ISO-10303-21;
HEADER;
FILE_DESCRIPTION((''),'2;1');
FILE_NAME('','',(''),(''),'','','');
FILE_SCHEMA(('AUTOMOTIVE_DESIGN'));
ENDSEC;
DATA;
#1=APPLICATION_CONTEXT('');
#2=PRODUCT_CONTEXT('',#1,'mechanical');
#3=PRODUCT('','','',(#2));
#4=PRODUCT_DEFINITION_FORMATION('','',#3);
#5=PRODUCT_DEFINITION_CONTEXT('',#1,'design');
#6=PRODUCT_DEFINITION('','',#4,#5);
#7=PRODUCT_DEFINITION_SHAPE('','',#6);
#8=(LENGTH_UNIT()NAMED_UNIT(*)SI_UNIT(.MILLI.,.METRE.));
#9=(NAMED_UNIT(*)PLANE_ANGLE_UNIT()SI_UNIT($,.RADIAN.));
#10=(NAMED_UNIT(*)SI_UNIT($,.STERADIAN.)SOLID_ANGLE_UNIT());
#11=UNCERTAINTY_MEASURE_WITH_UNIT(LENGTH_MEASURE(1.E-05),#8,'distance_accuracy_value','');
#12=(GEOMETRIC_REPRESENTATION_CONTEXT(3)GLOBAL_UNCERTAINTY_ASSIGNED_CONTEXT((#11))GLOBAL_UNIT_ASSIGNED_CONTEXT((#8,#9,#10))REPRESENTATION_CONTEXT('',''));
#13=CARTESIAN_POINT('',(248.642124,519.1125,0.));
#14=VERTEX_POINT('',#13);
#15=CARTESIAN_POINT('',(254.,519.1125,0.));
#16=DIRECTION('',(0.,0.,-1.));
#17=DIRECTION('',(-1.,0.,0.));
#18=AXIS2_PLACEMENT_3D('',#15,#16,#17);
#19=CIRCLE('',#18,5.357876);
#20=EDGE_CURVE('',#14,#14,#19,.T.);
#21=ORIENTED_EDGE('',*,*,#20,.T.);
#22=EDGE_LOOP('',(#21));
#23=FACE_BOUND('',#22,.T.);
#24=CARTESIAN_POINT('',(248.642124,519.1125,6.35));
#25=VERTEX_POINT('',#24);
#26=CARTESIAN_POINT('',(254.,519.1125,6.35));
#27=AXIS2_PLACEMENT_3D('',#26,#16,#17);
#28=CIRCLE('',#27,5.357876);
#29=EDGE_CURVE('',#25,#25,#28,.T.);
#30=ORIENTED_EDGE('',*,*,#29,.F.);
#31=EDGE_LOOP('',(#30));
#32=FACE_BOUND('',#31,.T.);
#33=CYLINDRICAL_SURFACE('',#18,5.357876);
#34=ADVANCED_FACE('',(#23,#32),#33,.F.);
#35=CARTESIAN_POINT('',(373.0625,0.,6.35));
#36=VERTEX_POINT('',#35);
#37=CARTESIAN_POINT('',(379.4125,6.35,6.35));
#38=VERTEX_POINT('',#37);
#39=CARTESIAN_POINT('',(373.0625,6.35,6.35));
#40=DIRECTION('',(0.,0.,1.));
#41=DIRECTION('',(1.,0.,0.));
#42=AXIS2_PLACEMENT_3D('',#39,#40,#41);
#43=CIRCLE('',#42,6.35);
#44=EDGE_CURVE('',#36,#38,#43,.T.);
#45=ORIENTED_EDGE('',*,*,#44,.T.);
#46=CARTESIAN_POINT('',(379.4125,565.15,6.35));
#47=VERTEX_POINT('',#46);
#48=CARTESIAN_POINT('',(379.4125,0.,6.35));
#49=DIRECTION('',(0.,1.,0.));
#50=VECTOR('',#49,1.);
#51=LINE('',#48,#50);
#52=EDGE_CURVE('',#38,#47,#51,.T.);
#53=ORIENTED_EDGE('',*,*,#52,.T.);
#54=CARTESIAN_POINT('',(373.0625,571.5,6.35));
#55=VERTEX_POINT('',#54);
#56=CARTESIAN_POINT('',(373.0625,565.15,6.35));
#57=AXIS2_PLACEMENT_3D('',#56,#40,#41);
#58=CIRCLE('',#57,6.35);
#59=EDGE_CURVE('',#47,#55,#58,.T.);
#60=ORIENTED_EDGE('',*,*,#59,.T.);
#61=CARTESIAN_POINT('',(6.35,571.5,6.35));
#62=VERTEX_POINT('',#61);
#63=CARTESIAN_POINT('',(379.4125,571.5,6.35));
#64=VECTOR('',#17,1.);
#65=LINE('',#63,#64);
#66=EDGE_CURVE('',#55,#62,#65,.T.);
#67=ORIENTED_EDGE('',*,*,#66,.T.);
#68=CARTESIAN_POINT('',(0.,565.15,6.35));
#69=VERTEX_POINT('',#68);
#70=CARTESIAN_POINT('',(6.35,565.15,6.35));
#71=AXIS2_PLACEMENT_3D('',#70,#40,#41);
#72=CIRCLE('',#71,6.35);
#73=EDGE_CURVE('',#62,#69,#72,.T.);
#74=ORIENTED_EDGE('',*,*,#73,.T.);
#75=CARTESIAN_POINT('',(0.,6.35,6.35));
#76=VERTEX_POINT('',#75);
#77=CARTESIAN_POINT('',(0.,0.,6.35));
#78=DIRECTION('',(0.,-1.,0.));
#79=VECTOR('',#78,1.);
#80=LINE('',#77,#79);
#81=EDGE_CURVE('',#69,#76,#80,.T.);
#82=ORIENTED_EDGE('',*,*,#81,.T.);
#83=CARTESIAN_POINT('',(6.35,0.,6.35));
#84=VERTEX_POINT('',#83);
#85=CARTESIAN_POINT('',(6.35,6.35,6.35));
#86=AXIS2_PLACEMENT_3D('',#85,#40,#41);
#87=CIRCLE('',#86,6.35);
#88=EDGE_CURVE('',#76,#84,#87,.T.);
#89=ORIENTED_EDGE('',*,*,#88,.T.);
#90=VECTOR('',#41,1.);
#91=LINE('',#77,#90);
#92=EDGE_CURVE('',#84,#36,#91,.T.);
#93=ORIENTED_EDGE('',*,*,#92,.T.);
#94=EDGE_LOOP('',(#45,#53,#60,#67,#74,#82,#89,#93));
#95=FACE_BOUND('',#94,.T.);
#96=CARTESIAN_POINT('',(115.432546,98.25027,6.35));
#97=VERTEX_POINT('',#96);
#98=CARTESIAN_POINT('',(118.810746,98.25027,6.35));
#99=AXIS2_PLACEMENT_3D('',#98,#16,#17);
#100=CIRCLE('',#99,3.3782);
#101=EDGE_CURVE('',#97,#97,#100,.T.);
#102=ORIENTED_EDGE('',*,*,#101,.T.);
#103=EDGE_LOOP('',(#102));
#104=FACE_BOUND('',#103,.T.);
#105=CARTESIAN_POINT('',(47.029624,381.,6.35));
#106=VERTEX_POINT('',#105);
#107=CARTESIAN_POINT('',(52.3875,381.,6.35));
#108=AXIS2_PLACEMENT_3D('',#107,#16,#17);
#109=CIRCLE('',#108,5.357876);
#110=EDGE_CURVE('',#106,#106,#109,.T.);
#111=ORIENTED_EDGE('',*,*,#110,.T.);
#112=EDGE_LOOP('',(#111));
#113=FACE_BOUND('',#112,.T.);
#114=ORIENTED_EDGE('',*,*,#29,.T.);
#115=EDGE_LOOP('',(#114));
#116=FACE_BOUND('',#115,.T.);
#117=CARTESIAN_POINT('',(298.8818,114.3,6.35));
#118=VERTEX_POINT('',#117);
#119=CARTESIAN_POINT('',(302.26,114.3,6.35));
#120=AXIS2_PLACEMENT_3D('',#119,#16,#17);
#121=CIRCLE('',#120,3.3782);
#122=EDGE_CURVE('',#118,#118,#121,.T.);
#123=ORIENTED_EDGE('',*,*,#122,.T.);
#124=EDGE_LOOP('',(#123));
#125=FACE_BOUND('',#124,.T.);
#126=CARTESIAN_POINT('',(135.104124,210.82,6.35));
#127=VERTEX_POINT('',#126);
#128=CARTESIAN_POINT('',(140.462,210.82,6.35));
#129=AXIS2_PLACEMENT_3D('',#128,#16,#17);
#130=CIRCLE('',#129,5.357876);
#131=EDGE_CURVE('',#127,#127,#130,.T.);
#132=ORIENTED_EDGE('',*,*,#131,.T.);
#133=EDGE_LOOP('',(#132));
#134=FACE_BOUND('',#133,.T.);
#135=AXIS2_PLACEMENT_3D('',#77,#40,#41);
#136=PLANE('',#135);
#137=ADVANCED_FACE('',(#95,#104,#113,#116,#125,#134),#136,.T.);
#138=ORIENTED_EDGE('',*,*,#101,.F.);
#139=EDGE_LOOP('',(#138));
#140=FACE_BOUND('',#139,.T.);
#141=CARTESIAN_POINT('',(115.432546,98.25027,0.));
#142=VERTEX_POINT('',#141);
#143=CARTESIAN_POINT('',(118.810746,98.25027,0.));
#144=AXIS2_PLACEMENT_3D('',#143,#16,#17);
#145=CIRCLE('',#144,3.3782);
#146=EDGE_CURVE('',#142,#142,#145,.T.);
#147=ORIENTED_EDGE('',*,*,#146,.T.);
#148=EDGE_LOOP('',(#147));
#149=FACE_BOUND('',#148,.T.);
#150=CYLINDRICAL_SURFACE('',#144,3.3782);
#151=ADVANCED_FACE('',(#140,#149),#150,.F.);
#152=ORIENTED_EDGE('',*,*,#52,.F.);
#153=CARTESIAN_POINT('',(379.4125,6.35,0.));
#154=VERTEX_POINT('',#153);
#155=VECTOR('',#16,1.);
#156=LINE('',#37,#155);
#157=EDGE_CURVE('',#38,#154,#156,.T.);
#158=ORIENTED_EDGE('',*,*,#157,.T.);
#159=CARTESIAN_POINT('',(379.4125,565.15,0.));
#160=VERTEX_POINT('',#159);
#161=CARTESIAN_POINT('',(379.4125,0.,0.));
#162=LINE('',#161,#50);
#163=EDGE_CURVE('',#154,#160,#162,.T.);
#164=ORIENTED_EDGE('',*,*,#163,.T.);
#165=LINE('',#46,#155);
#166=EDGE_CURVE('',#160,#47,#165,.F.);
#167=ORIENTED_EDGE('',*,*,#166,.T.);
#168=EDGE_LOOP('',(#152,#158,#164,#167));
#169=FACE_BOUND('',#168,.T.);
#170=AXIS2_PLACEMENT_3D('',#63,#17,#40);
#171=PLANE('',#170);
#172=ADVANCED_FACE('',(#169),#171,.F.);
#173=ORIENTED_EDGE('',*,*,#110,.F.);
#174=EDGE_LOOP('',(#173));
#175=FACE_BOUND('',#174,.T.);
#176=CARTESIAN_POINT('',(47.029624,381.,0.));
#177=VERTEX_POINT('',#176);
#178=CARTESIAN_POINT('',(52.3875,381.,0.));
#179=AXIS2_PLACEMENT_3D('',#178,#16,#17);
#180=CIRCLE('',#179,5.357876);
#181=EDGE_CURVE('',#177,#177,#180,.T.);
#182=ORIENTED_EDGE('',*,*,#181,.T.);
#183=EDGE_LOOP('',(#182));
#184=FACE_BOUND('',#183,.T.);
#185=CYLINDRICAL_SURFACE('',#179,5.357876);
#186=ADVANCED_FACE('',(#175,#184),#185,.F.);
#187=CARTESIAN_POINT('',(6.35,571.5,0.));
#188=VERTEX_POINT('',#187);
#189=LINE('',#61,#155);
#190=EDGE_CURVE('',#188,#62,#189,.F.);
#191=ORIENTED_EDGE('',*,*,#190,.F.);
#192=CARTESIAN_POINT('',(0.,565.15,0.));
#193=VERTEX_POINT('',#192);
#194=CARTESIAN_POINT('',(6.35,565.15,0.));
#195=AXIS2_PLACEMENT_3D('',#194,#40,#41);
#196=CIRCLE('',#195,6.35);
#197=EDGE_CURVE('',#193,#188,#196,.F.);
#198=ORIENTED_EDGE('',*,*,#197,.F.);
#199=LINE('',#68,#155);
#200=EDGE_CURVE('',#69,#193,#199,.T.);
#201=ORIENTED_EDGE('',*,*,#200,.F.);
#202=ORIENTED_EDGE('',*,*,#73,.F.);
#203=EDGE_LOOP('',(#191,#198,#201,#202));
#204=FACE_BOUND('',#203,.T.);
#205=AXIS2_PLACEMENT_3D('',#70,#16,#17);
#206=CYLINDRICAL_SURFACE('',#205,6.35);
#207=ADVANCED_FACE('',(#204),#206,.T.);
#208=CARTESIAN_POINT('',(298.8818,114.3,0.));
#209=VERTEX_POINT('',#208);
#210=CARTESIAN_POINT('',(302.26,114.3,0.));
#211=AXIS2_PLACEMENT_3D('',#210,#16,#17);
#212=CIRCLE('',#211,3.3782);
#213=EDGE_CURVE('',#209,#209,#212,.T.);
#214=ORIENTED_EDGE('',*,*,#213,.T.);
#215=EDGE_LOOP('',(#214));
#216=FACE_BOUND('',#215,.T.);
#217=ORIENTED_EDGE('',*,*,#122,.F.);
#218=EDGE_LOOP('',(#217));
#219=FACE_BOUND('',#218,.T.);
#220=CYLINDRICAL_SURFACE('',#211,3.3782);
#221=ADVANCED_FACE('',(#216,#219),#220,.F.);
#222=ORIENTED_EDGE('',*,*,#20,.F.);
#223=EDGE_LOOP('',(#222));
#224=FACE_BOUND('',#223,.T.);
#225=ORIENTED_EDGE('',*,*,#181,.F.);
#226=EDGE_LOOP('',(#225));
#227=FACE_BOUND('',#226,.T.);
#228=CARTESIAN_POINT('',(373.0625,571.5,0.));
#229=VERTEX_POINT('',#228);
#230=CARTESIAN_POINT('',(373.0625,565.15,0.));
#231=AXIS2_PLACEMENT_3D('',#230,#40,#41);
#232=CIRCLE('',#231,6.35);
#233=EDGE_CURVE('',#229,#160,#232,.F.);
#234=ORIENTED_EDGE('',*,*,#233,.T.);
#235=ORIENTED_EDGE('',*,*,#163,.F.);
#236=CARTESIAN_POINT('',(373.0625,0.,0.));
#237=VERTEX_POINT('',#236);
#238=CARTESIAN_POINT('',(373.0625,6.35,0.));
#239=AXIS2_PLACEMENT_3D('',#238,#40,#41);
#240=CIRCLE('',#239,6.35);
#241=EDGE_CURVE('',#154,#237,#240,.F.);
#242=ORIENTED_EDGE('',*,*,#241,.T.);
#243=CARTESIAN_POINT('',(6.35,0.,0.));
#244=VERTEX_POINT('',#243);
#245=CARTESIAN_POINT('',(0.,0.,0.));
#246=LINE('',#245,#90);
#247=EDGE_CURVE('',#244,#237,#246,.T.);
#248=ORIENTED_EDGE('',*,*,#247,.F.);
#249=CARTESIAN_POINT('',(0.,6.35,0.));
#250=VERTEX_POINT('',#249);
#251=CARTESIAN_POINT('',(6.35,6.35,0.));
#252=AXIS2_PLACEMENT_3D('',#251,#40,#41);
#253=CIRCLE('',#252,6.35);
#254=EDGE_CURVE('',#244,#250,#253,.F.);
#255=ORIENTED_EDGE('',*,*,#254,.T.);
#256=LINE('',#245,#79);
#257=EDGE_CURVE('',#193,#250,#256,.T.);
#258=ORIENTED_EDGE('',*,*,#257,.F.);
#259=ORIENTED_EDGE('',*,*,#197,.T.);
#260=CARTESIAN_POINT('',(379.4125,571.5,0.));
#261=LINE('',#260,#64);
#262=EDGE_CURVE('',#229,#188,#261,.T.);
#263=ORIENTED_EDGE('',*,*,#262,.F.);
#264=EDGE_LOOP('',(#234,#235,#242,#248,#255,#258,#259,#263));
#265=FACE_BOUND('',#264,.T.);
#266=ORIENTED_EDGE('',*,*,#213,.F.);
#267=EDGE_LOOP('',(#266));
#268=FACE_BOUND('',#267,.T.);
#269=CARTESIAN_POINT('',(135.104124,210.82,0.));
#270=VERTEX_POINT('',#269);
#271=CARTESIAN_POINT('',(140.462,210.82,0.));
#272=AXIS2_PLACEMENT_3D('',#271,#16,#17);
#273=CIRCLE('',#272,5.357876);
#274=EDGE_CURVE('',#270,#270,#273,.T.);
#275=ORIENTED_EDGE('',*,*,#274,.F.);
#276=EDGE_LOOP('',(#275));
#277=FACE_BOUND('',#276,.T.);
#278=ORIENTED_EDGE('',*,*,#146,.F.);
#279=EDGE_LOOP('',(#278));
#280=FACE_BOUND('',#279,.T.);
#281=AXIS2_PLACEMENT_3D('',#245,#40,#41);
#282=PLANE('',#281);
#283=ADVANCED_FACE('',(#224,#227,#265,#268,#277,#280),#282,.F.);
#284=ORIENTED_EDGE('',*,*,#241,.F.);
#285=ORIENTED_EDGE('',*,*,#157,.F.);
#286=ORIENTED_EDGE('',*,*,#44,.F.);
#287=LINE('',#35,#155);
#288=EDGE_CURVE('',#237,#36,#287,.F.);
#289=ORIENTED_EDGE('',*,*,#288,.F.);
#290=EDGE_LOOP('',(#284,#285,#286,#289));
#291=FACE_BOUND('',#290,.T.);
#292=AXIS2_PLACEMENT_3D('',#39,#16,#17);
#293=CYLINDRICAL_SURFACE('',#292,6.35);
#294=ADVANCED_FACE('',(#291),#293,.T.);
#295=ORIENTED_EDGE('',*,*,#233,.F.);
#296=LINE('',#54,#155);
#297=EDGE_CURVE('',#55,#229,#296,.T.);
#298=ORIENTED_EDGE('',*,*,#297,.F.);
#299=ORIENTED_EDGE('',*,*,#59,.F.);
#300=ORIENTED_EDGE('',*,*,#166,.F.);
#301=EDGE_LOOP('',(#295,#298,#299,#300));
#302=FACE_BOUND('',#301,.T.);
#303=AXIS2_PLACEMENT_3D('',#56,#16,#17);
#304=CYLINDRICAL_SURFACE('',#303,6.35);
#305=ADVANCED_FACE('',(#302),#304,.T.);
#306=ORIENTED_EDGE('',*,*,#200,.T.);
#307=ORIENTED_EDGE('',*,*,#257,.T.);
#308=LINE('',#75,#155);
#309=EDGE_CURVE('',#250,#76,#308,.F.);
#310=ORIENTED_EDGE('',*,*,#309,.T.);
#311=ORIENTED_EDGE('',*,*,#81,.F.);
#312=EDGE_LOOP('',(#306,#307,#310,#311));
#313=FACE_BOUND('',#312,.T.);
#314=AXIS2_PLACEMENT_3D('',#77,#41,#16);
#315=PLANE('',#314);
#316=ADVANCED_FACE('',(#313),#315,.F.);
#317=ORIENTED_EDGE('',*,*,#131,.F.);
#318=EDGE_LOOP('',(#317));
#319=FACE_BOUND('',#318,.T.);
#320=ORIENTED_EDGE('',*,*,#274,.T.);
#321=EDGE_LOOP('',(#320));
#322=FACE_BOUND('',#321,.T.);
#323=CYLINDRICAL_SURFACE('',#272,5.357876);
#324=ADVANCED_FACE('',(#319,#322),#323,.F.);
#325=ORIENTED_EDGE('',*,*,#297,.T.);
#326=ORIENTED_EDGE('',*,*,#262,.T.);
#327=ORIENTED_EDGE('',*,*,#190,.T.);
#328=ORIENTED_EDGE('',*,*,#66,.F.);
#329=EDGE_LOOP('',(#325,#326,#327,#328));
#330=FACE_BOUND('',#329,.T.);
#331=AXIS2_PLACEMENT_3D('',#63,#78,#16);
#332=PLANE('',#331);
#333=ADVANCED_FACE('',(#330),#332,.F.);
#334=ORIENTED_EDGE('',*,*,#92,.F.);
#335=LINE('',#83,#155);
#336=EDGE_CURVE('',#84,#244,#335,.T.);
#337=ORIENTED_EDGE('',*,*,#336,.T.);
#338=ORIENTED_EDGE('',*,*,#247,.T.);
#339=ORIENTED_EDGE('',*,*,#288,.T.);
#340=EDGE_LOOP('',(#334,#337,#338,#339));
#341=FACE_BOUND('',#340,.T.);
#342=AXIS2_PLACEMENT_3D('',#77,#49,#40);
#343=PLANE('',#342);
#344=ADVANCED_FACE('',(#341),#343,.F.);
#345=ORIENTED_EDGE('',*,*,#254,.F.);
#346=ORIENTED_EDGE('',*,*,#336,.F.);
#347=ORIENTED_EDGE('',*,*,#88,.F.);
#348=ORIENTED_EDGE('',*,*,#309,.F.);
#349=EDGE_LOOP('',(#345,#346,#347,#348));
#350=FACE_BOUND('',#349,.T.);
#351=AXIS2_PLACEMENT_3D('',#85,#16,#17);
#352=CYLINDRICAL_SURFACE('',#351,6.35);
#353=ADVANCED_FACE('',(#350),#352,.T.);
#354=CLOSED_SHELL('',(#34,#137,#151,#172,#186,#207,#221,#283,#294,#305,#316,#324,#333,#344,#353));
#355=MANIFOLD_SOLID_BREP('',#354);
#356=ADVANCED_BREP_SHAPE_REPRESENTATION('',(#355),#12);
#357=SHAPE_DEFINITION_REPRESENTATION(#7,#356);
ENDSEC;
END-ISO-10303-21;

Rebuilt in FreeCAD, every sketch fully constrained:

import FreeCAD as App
import Part
import Sketcher
from FreeCAD import Vector
Q = App.Units.Quantity


def edges_at(feature, points):
    """Names of the edges that pass closest to the given points."""
    edges = feature.Shape.Edges
    near = lambda p: min(range(len(edges)), key=lambda i: edges[i].distToShape(Part.Vertex(*p))[0])
    return sorted({f"Edge{near(p) + 1}" for p in points})

doc = App.newDocument("Part")
body = doc.addObject("PartDesign::Body", "Body")

# Sketch on XY plane
sketch1 = body.newObject("Sketcher::SketchObject", "Sketch")
sketch1.AttachmentSupport = (doc.getObject("XY_Plane"), [""])
sketch1.MapMode = "FlatFace"
sketch1.addGeometry([
    Part.LineSegment(Vector(0, 571.5, 0), Vector(0, 0, 0)),  # 0
    Part.LineSegment(Vector(0, 0, 0), Vector(379.4125, 0, 0)),  # 1
    Part.LineSegment(Vector(379.4125, 0, 0), Vector(379.4125, 403.225, 0)),  # 2
    Part.LineSegment(Vector(379.4125, 403.225, 0), Vector(428.625, 403.225, 0)),  # 3
    Part.LineSegment(Vector(428.625, 403.225, 0), Vector(428.625, 355.6, 0)),  # 4
    Part.LineSegment(Vector(428.625, 355.6, 0), Vector(479.425, 355.6, 0)),  # 5
    Part.LineSegment(Vector(479.425, 355.6, 0), Vector(479.425, 466.725, 0)),  # 6
    Part.LineSegment(Vector(479.425, 466.725, 0), Vector(379.4125, 466.725, 0)),  # 7
    Part.LineSegment(Vector(379.4125, 466.725, 0), Vector(379.4125, 571.5, 0)),  # 8
    Part.LineSegment(Vector(379.4125, 571.5, 0), Vector(0, 571.5, 0)),  # 9
], False)
sketch1.addConstraint([
    Sketcher.Constraint("Coincident", 0, 2, 1, 1),
    Sketcher.Constraint("Coincident", 1, 2, 2, 1),
    Sketcher.Constraint("Coincident", 2, 2, 3, 1),
    Sketcher.Constraint("Coincident", 3, 2, 4, 1),
    Sketcher.Constraint("Coincident", 4, 2, 5, 1),
    Sketcher.Constraint("Coincident", 5, 2, 6, 1),
    Sketcher.Constraint("Coincident", 6, 2, 7, 1),
    Sketcher.Constraint("Coincident", 7, 2, 8, 1),
    Sketcher.Constraint("Coincident", 8, 2, 9, 1),
    Sketcher.Constraint("Coincident", 9, 2, 0, 1),
    Sketcher.Constraint("Vertical", 0),
    Sketcher.Constraint("Horizontal", 1),
    Sketcher.Constraint("Vertical", 2),
    Sketcher.Constraint("Horizontal", 3),
    Sketcher.Constraint("Vertical", 4),
    Sketcher.Constraint("Horizontal", 5),
    Sketcher.Constraint("Vertical", 6),
    Sketcher.Constraint("Horizontal", 7),
    Sketcher.Constraint("Vertical", 8),
    Sketcher.Constraint("Horizontal", 9),
    Sketcher.Constraint("Coincident", 0, 2, -1, 1),
    Sketcher.Constraint("Vertical", 2, 2, 7, 2),
    Sketcher.Constraint("DistanceX", 5, 1, 5, 2, Q("2 in")),
    Sketcher.Constraint("DistanceY", 0, 2, 0, 1, Q("22.5 in")),
    Sketcher.Constraint("DistanceY", -1, 1, 4, 2, Q("14 in")),
    Sketcher.Constraint("DistanceY", 3, 2, 6, 2, Q("2.5 in")),
    Sketcher.Constraint("DistanceX", 1, 1, 1, 2, Q("14.9375 in")),
    Sketcher.Constraint("DistanceX", 3, 1, 3, 2, Q("1.9375 in")),
    Sketcher.Constraint("DistanceY", 2, 1, 2, 2, Q("15.875 in")),
])
pad1 = body.newObject("PartDesign::Pad", "Pad")
pad1.Profile = sketch1
pad1.Length = Q("0.25 in")
doc.recompute()

fillet = body.newObject("PartDesign::Fillet", "Fillet")
fillet.Base = (pad1, edges_at(pad1, [(428.625, 403.225, 3.175), (379.413, 403.225, 3.175)]))
fillet.Radius = Q("0.125 in")
doc.recompute()

fillet2 = body.newObject("PartDesign::Fillet", "Fillet001")
fillet2.Base = (fillet, edges_at(fillet, [(379.413, 466.725, 3.175), (479.425, 466.725, 3.175)]))
fillet2.Radius = Q("1.75 in")

# Sketch on XY plane
sketch2 = body.newObject("Sketcher::SketchObject", "Sketch001")
sketch2.AttachmentSupport = (doc.getObject("XY_Plane"), [""])
sketch2.MapMode = "FlatFace"
sketch2.addGeometry([
    Part.Circle(Vector(118.810746, 98.25027, 0), Vector(0, 0, 1), 3.3782),
    Part.Circle(Vector(302.26, 114.3, 0), Vector(0, 0, 1), 3.3782),
], False)
sketch2.addConstraint([
    Sketcher.Constraint("Equal", 0, 1),
    Sketcher.Constraint("Diameter", 0, Q("0.266 in")),
    Sketcher.Constraint("DistanceX", -1, 1, 1, 3, Q("11.9 in")),
    Sketcher.Constraint("DistanceY", -1, 1, 1, 3, Q("4.5 in")),
    Sketcher.Constraint("DistanceY", -1, 1, 0, 3, Q("98.25027 mm")),
    Sketcher.Constraint("DistanceX", -1, 1, 0, 3, Q("118.810746 mm")),
])
doc.recompute()
hole = body.newObject("PartDesign::Hole", "Hole")
hole.Profile = sketch2
hole.ThreadType = "None"
hole.Diameter = Q("0.266 in")
hole.DepthType = "ThroughAll"
hole.Reversed = True

# Sketch on XY plane
sketch3 = body.newObject("Sketcher::SketchObject", "Sketch002")
sketch3.AttachmentSupport = (doc.getObject("XY_Plane"), [""])
sketch3.MapMode = "FlatFace"
sketch3.addGeometry([
    Part.LineSegment(Vector(479.425, 511.175, 0), Vector(479.425, 355.6, 0)),
    Part.LineSegment(Vector(479.425, 355.6, 0), Vector(379.4125, 355.6, 0)),
    Part.LineSegment(Vector(379.4125, 355.6, 0), Vector(379.4125, 511.175, 0)),
    Part.LineSegment(Vector(379.4125, 511.175, 0), Vector(479.425, 511.175, 0)),
], False)
sketch3.addConstraint([
    Sketcher.Constraint("Coincident", 0, 2, 1, 1),
    Sketcher.Constraint("Coincident", 1, 2, 2, 1),
    Sketcher.Constraint("Coincident", 2, 2, 3, 1),
    Sketcher.Constraint("Coincident", 3, 2, 0, 1),
    Sketcher.Constraint("Vertical", 0),
    Sketcher.Constraint("Horizontal", 1),
    Sketcher.Constraint("Vertical", 2),
    Sketcher.Constraint("Horizontal", 3),
    Sketcher.Constraint("DistanceY", -1, 1, 0, 2, Q("14 in")),
    Sketcher.Constraint("DistanceX", 1, 2, 1, 1, Q("3.9375 in")),
    Sketcher.Constraint("DistanceY", 0, 2, 0, 1, Q("6.125 in")),
    Sketcher.Constraint("DistanceX", -1, 1, 0, 2, Q("18.875 in")),
])
pocket1 = body.newObject("PartDesign::Pocket", "Pocket")
pocket1.Profile = sketch3
pocket1.Type = "ThroughAll"
pocket1.Reversed = True

# Sketch on XY plane
sketch4 = body.newObject("Sketcher::SketchObject", "Sketch003")
sketch4.AttachmentSupport = (doc.getObject("XY_Plane"), [""])
sketch4.MapMode = "FlatFace"
sketch4.addGeometry([
    Part.Circle(Vector(254, 519.1125, 0), Vector(0, 0, 1), 5.357876),
    Part.Circle(Vector(52.3875, 381, 0), Vector(0, 0, 1), 5.357876),
    Part.Circle(Vector(140.462, 210.82, 0), Vector(0, 0, 1), 5.357876),
], False)
sketch4.addConstraint([
    Sketcher.Constraint("Equal", 0, 1),
    Sketcher.Constraint("Equal", 1, 2),
    Sketcher.Constraint("DistanceX", -1, 1, 0, 3, Q("10 in")),
    Sketcher.Constraint("DistanceY", -1, 1, 1, 3, Q("15 in")),
    Sketcher.Constraint("DistanceY", -1, 1, 2, 3, Q("8.3 in")),
    Sketcher.Constraint("DistanceX", -1, 1, 2, 3, Q("5.53 in")),
    Sketcher.Constraint("DistanceY", -1, 1, 0, 3, Q("20.4375 in")),
    Sketcher.Constraint("DistanceX", -1, 1, 1, 3, Q("2.0625 in")),
    Sketcher.Constraint("Diameter", 0, Q("10.715752 mm")),
])
doc.recompute()
hole2 = body.newObject("PartDesign::Hole", "Hole001")
hole2.Profile = sketch4
hole2.ThreadType = "None"
hole2.Diameter = 10.715752
hole2.DepthType = "ThroughAll"
hole2.Reversed = True
doc.recompute()

fillet3 = body.newObject("PartDesign::Fillet", "Fillet002")
fillet3.Base = (hole2, edges_at(hole2, [
    (0, 0, 3.175),
    (0, 571.5, 3.175),
    (379.413, 571.5, 3.175),
    (379.413, 0, 3.175),
]))
fillet3.Radius = Q("0.25 in")

doc.recompute()
